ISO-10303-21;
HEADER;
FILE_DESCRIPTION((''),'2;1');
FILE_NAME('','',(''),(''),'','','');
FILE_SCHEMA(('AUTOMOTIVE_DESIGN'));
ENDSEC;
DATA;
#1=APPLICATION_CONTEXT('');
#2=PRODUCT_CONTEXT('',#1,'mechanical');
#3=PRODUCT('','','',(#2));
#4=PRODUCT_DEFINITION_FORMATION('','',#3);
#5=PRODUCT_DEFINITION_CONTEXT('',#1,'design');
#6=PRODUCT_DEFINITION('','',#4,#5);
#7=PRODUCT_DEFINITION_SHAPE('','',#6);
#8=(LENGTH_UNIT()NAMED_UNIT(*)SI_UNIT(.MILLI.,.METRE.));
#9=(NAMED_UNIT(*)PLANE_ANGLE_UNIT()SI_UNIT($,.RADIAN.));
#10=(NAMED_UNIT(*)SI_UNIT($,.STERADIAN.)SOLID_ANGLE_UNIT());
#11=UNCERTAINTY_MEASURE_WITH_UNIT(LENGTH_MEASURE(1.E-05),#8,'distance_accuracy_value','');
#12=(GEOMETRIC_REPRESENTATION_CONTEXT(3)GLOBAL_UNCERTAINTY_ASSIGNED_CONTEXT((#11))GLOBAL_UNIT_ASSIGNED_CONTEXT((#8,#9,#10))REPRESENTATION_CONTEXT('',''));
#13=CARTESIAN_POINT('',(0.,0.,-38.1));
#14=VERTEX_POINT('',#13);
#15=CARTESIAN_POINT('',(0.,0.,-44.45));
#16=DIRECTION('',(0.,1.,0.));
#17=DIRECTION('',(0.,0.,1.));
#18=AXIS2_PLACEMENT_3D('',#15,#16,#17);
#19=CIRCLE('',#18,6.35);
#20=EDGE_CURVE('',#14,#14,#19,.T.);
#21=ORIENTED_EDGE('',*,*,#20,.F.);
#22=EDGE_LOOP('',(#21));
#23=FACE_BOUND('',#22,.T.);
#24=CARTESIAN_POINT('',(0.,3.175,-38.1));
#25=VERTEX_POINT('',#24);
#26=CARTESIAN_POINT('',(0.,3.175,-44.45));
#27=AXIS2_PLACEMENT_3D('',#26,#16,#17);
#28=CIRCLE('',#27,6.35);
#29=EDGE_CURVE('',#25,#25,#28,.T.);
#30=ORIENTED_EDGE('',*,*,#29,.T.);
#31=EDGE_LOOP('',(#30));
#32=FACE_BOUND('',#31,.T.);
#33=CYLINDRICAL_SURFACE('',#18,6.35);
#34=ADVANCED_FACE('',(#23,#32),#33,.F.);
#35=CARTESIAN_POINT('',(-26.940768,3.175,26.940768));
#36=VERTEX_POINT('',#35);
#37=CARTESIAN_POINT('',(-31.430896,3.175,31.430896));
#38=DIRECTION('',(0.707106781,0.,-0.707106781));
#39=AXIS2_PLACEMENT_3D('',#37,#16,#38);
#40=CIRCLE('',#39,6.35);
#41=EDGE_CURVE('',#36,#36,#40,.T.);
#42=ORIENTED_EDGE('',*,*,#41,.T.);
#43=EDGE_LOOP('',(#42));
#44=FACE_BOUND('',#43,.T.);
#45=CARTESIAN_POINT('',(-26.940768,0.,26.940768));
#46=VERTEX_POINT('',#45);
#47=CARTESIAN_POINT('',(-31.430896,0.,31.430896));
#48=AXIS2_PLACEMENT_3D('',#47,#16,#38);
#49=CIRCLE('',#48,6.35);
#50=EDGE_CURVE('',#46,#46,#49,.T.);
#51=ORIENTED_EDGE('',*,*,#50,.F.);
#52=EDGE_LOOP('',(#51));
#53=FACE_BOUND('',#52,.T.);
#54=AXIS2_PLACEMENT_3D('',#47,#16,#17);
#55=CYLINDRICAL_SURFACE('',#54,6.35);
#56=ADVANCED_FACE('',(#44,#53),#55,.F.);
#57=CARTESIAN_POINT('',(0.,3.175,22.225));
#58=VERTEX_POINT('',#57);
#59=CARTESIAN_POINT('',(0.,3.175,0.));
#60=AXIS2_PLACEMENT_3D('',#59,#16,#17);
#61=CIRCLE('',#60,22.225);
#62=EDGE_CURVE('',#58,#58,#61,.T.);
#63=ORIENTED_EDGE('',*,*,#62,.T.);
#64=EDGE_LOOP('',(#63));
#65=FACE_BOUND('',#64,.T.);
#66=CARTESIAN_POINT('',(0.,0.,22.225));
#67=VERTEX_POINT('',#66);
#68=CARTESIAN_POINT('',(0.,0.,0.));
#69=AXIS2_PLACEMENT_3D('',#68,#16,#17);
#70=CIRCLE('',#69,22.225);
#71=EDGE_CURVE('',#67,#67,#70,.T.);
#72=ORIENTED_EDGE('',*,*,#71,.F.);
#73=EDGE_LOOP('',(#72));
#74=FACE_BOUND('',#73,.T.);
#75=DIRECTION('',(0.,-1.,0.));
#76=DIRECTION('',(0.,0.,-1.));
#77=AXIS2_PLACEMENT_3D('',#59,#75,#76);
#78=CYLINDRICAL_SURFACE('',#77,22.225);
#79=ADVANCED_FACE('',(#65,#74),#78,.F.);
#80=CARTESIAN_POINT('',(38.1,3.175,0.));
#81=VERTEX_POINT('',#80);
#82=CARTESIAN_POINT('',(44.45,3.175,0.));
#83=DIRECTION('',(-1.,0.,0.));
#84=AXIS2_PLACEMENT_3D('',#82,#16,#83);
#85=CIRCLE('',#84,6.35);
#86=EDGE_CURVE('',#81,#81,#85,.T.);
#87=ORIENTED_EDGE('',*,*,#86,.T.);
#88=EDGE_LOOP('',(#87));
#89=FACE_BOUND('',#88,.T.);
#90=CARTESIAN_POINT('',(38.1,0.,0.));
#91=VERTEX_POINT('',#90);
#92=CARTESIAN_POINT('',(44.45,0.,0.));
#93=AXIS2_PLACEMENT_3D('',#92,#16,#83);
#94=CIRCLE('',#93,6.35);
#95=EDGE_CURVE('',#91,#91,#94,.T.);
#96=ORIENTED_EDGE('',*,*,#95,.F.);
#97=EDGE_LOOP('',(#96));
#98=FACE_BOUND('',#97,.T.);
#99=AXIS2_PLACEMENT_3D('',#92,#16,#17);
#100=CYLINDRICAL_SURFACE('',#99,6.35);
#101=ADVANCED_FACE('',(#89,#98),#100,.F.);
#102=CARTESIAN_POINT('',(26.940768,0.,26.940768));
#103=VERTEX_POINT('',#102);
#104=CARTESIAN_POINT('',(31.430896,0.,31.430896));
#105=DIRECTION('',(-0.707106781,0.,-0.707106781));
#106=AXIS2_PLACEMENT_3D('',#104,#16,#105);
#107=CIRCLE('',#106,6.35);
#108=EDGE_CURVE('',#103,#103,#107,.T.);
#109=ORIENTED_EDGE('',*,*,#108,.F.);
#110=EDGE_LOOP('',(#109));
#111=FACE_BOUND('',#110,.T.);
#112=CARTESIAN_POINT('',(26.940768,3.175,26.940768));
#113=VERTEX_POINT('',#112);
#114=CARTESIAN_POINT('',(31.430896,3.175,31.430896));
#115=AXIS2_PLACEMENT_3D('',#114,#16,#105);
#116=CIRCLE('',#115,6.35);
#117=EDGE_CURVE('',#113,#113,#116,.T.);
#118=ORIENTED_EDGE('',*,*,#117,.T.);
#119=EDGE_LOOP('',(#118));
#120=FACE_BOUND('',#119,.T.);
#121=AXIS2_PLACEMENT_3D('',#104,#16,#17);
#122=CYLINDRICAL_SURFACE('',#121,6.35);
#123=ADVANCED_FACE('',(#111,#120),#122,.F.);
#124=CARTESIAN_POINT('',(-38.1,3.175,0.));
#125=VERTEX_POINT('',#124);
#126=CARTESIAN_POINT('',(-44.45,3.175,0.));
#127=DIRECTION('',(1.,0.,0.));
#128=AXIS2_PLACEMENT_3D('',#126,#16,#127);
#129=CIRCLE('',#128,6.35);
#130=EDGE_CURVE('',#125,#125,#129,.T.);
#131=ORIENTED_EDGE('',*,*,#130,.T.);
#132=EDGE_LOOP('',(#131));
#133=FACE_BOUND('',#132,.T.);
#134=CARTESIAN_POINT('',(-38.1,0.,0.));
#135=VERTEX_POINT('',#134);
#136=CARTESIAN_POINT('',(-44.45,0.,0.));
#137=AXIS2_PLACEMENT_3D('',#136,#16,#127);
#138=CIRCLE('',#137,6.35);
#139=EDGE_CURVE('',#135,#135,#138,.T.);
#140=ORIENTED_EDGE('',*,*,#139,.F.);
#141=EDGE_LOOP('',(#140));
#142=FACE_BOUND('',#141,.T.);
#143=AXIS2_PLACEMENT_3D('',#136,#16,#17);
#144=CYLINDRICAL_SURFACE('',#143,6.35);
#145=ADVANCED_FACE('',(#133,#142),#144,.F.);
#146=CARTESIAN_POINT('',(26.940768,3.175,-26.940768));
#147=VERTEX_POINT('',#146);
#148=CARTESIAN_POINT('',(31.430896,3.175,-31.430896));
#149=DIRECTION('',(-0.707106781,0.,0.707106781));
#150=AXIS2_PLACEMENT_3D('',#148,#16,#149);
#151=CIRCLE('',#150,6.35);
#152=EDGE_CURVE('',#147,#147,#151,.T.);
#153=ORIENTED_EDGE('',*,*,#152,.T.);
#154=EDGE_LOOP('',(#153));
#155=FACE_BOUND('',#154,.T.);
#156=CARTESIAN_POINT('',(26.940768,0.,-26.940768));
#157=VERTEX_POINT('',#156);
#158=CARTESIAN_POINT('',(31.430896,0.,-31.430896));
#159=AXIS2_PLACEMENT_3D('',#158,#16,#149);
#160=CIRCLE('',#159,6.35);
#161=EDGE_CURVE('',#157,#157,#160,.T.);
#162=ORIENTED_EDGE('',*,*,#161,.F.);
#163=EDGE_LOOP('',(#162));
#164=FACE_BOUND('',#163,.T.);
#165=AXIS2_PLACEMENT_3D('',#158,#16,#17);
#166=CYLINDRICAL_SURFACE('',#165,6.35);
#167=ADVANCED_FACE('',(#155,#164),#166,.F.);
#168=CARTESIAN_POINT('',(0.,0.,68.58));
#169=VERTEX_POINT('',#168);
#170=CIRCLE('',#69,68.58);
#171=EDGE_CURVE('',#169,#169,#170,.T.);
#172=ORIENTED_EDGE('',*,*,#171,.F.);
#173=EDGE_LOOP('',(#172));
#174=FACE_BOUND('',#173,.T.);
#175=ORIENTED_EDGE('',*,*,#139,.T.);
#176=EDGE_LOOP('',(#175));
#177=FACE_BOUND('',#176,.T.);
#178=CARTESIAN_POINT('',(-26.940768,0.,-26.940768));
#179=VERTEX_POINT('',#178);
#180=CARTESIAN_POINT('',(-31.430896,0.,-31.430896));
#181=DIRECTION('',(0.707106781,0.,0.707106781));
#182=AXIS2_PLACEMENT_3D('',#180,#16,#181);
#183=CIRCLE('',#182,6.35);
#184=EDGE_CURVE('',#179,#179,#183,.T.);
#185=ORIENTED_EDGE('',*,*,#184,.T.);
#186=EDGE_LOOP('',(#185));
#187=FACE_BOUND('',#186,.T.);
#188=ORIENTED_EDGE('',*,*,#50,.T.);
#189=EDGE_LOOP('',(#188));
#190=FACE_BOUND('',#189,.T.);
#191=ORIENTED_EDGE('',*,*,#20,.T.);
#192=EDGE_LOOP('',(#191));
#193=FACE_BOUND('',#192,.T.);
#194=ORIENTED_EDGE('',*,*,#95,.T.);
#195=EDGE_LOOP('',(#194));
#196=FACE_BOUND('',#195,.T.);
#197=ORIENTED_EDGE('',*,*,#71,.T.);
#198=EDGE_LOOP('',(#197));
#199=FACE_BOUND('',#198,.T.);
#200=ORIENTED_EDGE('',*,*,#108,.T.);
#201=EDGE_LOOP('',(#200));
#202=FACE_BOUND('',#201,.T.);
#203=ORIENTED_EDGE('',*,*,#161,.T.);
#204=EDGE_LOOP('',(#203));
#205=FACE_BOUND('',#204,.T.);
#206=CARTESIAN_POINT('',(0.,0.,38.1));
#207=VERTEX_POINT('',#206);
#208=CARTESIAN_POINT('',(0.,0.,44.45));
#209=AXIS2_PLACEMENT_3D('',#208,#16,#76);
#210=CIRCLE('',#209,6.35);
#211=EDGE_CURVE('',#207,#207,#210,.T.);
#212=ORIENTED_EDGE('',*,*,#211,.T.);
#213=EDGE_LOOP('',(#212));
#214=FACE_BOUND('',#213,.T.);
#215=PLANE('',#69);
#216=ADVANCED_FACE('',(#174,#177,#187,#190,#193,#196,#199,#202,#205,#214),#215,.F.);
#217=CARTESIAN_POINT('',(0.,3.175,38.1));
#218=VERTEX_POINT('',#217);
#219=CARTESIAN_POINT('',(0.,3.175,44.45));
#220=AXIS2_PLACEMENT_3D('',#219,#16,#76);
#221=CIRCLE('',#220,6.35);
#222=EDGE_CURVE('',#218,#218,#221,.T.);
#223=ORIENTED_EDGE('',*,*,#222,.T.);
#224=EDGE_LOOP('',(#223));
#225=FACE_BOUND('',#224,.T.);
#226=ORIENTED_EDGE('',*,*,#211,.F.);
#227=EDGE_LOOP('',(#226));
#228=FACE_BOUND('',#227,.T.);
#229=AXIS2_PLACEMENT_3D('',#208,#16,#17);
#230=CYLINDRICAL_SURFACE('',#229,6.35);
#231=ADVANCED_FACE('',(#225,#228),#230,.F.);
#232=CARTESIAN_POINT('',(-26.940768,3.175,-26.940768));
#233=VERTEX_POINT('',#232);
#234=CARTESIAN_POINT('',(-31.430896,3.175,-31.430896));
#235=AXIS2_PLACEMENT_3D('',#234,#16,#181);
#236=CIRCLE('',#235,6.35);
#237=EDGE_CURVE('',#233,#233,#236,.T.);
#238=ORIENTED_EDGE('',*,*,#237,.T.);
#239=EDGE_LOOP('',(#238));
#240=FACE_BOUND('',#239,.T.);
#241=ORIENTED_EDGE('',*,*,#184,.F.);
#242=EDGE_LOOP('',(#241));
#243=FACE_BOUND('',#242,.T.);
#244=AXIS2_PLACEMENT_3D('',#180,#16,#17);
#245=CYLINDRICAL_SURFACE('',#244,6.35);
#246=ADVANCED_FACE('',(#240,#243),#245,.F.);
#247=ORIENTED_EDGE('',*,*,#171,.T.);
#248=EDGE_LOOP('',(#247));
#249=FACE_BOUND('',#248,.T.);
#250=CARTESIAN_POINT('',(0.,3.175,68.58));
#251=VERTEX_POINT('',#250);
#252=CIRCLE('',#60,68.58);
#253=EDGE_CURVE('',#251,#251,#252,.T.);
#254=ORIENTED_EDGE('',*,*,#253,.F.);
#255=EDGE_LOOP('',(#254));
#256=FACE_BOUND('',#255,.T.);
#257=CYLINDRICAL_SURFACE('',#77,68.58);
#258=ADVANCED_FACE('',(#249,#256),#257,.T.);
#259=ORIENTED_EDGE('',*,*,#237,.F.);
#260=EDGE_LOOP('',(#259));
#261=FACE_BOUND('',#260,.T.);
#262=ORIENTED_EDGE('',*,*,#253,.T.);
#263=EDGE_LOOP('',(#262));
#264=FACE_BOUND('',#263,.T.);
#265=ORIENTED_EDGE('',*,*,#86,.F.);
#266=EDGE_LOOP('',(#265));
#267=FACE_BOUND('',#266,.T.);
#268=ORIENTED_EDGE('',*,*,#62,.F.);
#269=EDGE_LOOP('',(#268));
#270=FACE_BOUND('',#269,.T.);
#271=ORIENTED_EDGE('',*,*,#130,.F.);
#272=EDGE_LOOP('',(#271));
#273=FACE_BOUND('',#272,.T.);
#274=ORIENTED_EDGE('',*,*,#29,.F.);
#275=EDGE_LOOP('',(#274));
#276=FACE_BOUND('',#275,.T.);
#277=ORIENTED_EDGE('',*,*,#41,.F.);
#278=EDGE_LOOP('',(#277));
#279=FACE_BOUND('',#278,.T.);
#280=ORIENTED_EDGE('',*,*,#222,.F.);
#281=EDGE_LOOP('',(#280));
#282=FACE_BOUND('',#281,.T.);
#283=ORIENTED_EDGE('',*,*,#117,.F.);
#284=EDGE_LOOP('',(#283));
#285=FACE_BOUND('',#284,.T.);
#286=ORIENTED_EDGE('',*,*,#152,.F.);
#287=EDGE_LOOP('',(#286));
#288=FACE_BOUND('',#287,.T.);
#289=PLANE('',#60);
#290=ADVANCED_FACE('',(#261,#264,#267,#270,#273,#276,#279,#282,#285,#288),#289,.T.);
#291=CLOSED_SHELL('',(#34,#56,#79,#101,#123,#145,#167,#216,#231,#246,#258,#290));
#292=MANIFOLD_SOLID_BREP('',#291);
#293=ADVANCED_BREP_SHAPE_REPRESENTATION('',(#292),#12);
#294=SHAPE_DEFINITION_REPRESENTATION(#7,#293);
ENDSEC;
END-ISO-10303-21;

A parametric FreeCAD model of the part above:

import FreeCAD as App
import Part
import Sketcher
Q = App.Units.Quantity

doc = App.newDocument("Part")
body = doc.addObject("PartDesign::Body", "Body")

# Sketch on XZ plane
sketch1 = body.newObject("Sketcher::SketchObject", "Sketch")
sketch1.AttachmentSupport = (doc.getObject("XZ_Plane"), [""])
sketch1.MapMode = "FlatFace"
sketch1.addGeometry(Part.Circle(App.Vector(0, 0, 0), App.Vector(0, 0, 1), 69), False)
sketch1.addGeometry(Part.Circle(App.Vector(0, 0, 0), App.Vector(0, 0, 1), 22), False)
sketch1.addConstraint(Sketcher.Constraint("Coincident", 0, 3, -1, 1))
sketch1.addConstraint(Sketcher.Constraint("Coincident", 1, 3, -1, 1))
sketch1.addConstraint(Sketcher.Constraint("Diameter", 0, Q("5.4 in")))
sketch1.addConstraint(Sketcher.Constraint("Diameter", 1, Q("1.75 in")))
pad1 = body.newObject("PartDesign::Pad", "Pad")
pad1.Profile = sketch1
pad1.Length = Q("0.125 in")
pad1.Reversed = True

# Sketch on XZ plane
sketch2 = body.newObject("Sketcher::SketchObject", "Sketch001")
sketch2.AttachmentSupport = (doc.getObject("XZ_Plane"), [""])
sketch2.MapMode = "FlatFace"
sketch2.AttachmentOffset = App.Placement(App.Vector(0, 0, -0.125 * 25.4), App.Rotation())
sketch2.addGeometry(Part.Circle(App.Vector(0, -44, 0), App.Vector(0, 0, 1), 6), False)
sketch2.addConstraint(Sketcher.Constraint("PointOnObject", 0, 3, -2))
sketch2.addConstraint(Sketcher.Constraint("Diameter", 0, Q("0.5 in")))
sketch2.addConstraint(Sketcher.Constraint("DistanceY", 0, 3, -1, 1, Q("1.75 in")))
pocket1 = body.newObject("PartDesign::Pocket", "Pocket")
pocket1.Profile = sketch2
pocket1.Length = Q("0.125 in")
pocket1.Reversed = True
doc.recompute()

polarpattern = body.newObject("PartDesign::PolarPattern", "PolarPattern")
polarpattern.Originals = [pocket1]
polarpattern.Axis = (doc.getObject("Y_Axis"), [""])
polarpattern.Angle = 360
polarpattern.Occurrences = 8
body.Tip = polarpattern

doc.recompute()
